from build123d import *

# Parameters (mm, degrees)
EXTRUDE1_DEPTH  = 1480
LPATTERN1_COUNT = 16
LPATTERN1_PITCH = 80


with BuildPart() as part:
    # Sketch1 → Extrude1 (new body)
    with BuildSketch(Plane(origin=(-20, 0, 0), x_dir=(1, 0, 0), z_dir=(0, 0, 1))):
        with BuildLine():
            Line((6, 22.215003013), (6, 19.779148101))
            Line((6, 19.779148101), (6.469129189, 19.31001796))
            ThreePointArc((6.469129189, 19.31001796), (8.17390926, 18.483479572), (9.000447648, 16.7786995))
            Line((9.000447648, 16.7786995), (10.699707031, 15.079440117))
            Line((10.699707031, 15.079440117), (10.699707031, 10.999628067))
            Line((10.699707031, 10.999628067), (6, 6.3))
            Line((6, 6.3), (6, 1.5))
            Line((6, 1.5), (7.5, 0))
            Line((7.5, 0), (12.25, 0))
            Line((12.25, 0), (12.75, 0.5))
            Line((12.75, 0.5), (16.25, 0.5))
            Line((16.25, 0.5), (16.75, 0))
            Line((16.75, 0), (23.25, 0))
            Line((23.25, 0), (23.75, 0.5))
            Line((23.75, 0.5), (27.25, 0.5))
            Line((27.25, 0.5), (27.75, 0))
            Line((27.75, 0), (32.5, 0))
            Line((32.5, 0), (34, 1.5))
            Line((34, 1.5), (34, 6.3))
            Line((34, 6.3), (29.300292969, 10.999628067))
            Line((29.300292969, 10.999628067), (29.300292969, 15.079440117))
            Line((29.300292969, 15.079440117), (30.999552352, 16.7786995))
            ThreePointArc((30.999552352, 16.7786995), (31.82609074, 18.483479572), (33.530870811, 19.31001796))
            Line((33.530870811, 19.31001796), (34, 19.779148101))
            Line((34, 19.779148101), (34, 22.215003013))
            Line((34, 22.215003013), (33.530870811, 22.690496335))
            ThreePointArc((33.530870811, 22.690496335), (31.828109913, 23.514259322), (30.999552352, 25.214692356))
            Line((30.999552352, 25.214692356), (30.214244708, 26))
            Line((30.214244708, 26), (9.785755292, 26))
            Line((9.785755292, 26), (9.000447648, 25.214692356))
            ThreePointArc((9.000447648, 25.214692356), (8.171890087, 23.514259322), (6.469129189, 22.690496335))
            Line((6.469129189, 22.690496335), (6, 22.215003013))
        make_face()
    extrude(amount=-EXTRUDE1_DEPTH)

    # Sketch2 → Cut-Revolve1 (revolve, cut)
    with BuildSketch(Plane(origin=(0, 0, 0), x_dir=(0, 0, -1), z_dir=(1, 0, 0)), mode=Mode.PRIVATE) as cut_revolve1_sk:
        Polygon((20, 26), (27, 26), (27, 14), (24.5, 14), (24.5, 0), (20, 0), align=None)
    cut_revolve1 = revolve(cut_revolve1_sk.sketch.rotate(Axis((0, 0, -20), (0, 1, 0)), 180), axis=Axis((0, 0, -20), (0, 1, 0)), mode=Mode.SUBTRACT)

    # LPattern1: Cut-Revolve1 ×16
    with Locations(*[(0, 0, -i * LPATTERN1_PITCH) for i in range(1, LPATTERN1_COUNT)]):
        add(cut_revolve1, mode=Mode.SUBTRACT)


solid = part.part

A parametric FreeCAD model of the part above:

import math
import FreeCAD as App
import Part
import Sketcher
from FreeCAD import Vector

doc = App.newDocument("Part")
body = doc.addObject("PartDesign::Body", "Body")

# Sketch on XY plane
sketch1 = body.newObject("Sketcher::SketchObject", "Sketch")
sketch1.AttachmentSupport = (doc.getObject("XY_Plane"), [""])
sketch1.MapMode = "FlatFace"
sketch1.addGeometry(Part.LineSegment(Vector(-14, 22.215003, 0), Vector(-14, 19.779148, 0)), False)
sketch1.addGeometry(Part.LineSegment(Vector(-14, 19.779148, 0), Vector(-13.530871, 19.310018, 0)), False)
sketch1.addGeometry(Part.ArcOfCircle(Part.Circle(Vector(-13.869629, 16.439941, 0), Vector(0, 0, 1), 2.889999), math.radians(6.731535), math.radians(83.268465)), False)
sketch1.addGeometry(Part.LineSegment(Vector(-10.999552, 16.778699, 0), Vector(-9.300293, 15.07944, 0)), False)
sketch1.addGeometry(Part.LineSegment(Vector(-9.300293, 15.07944, 0), Vector(-9.300293, 10.999628, 0)), False)
sketch1.addGeometry(Part.LineSegment(Vector(-9.300293, 10.999628, 0), Vector(-14, 6.3, 0)), False)
sketch1.addGeometry(Part.LineSegment(Vector(-14, 6.3, 0), Vector(-14, 1.5, 0)), False)
sketch1.addGeometry(Part.LineSegment(Vector(-14, 1.5, 0), Vector(-12.5, 0, 0)), False)
sketch1.addGeometry(Part.LineSegment(Vector(-12.5, 0, 0), Vector(-7.75, 0, 0)), False)
sketch1.addGeometry(Part.LineSegment(Vector(-7.75, 0, 0), Vector(-7.25, 0.5, 0)), False)
sketch1.addGeometry(Part.LineSegment(Vector(-7.25, 0.5, 0), Vector(-3.75, 0.5, 0)), False)
sketch1.addGeometry(Part.LineSegment(Vector(-3.75, 0.5, 0), Vector(-3.25, 0, 0)), False)
sketch1.addGeometry(Part.LineSegment(Vector(-3.25, 0, 0), Vector(3.25, 0, 0)), False)
sketch1.addGeometry(Part.LineSegment(Vector(3.25, 0, 0), Vector(3.75, 0.5, 0)), False)
sketch1.addGeometry(Part.LineSegment(Vector(3.75, 0.5, 0), Vector(7.25, 0.5, 0)), False)
sketch1.addGeometry(Part.LineSegment(Vector(7.25, 0.5, 0), Vector(7.75, 0, 0)), False)
sketch1.addGeometry(Part.LineSegment(Vector(7.75, 0, 0), Vector(12.5, 0, 0)), False)
sketch1.addGeometry(Part.LineSegment(Vector(12.5, 0, 0), Vector(14, 1.5, 0)), False)
sketch1.addGeometry(Part.LineSegment(Vector(14, 1.5, 0), Vector(14, 6.3, 0)), False)
sketch1.addGeometry(Part.LineSegment(Vector(14, 6.3, 0), Vector(9.300293, 10.999628, 0)), False)
sketch1.addGeometry(Part.LineSegment(Vector(9.300293, 10.999628, 0), Vector(9.300293, 15.07944, 0)), False)
sketch1.addGeometry(Part.LineSegment(Vector(9.300293, 15.07944, 0), Vector(10.999552, 16.778699, 0)), False)
sketch1.addGeometry(Part.ArcOfCircle(Part.Circle(Vector(13.869629, 16.439941, 0), Vector(0, 0, 1), 2.889999), math.radians(96.731535), math.radians(173.268465)), False)
sketch1.addGeometry(Part.LineSegment(Vector(13.530871, 19.310018, 0), Vector(14, 19.779148, 0)), False)
sketch1.addGeometry(Part.LineSegment(Vector(14, 19.779148, 0), Vector(14, 22.215003, 0)), False)
sketch1.addGeometry(Part.LineSegment(Vector(14, 22.215003, 0), Vector(13.530871, 22.690496, 0)), False)
sketch1.addGeometry(Part.ArcOfCircle(Part.Circle(Vector(13.868767, 25.560674, 0), Vector(0, 0, 1), 2.889999), math.radians(-173.124228), math.radians(-96.71433)), False)
sketch1.addGeometry(Part.LineSegment(Vector(10.999552, 25.214692, 0), Vector(10.214245, 26, 0)), False)
sketch1.addGeometry(Part.LineSegment(Vector(10.214245, 26, 0), Vector(-10.214245, 26, 0)), False)
sketch1.addGeometry(Part.LineSegment(Vector(-10.214245, 26, 0), Vector(-10.999552, 25.214692, 0)), False)
sketch1.addGeometry(Part.ArcOfCircle(Part.Circle(Vector(-13.868767, 25.560674, 0), Vector(0, 0, 1), 2.889999), math.radians(-83.28567), math.radians(-6.875772)), False)
sketch1.addGeometry(Part.LineSegment(Vector(-13.530871, 22.690496, 0), Vector(-14, 22.215003, 0)), False)
sketch1.addConstraint(Sketcher.Constraint("Coincident", 0, 2, 1, 1))
sketch1.addConstraint(Sketcher.Constraint("Coincident", 1, 2, 2, 2))
sketch1.addConstraint(Sketcher.Constraint("Coincident", 2, 1, 3, 1))
sketch1.addConstraint(Sketcher.Constraint("Coincident", 3, 2, 4, 1))
sketch1.addConstraint(Sketcher.Constraint("Coincident", 4, 2, 5, 1))
sketch1.addConstraint(Sketcher.Constraint("Coincident", 5, 2, 6, 1))
sketch1.addConstraint(Sketcher.Constraint("Coincident", 6, 2, 7, 1))
sketch1.addConstraint(Sketcher.Constraint("Coincident", 7, 2, 8, 1))
sketch1.addConstraint(Sketcher.Constraint("Coincident", 8, 2, 9, 1))
sketch1.addConstraint(Sketcher.Constraint("Coincident", 9, 2, 10, 1))
sketch1.addConstraint(Sketcher.Constraint("Coincident", 10, 2, 11, 1))
sketch1.addConstraint(Sketcher.Constraint("Coincident", 11, 2, 12, 1))
sketch1.addConstraint(Sketcher.Constraint("Coincident", 12, 2, 13, 1))
sketch1.addConstraint(Sketcher.Constraint("Coincident", 13, 2, 14, 1))
sketch1.addConstraint(Sketcher.Constraint("Coincident", 14, 2, 15, 1))
sketch1.addConstraint(Sketcher.Constraint("Coincident", 15, 2, 16, 1))
sketch1.addConstraint(Sketcher.Constraint("Coincident", 16, 2, 17, 1))
sketch1.addConstraint(Sketcher.Constraint("Coincident", 17, 2, 18, 1))
sketch1.addConstraint(Sketcher.Constraint("Coincident", 18, 2, 19, 1))
sketch1.addConstraint(Sketcher.Constraint("Coincident", 19, 2, 20, 1))
sketch1.addConstraint(Sketcher.Constraint("Coincident", 20, 2, 21, 1))
sketch1.addConstraint(Sketcher.Constraint("Coincident", 21, 2, 22, 2))
sketch1.addConstraint(Sketcher.Constraint("Coincident", 22, 1, 23, 1))
sketch1.addConstraint(Sketcher.Constraint("Coincident", 23, 2, 24, 1))
sketch1.addConstraint(Sketcher.Constraint("Coincident", 24, 2, 25, 1))
sketch1.addConstraint(Sketcher.Constraint("Coincident", 25, 2, 26, 2))
sketch1.addConstraint(Sketcher.Constraint("Coincident", 26, 1, 27, 1))
sketch1.addConstraint(Sketcher.Constraint("Coincident", 27, 2, 28, 1))
sketch1.addConstraint(Sketcher.Constraint("Coincident", 28, 2, 29, 1))
sketch1.addConstraint(Sketcher.Constraint("Coincident", 29, 2, 30, 2))
sketch1.addConstraint(Sketcher.Constraint("Coincident", 30, 1, 31, 1))
sketch1.addConstraint(Sketcher.Constraint("Coincident", 31, 2, 0, 1))
sketch1.addConstraint(Sketcher.Constraint("Vertical", 0))
sketch1.addConstraint(Sketcher.Constraint("Vertical", 4))
sketch1.addConstraint(Sketcher.Constraint("Vertical", 6))
sketch1.addConstraint(Sketcher.Constraint("Horizontal", 8))
sketch1.addConstraint(Sketcher.Constraint("Horizontal", 10))
sketch1.addConstraint(Sketcher.Constraint("Horizontal", 12))
sketch1.addConstraint(Sketcher.Constraint("Horizontal", 14))
sketch1.addConstraint(Sketcher.Constraint("Horizontal", 16))
sketch1.addConstraint(Sketcher.Constraint("Vertical", 18))
sketch1.addConstraint(Sketcher.Constraint("Vertical", 20))
sketch1.addConstraint(Sketcher.Constraint("Vertical", 24))
sketch1.addConstraint(Sketcher.Constraint("Horizontal", 28))
sketch1.addConstraint(Sketcher.Constraint("Equal", 2, 22))
sketch1.addConstraint(Sketcher.Constraint("Equal", 22, 26))
sketch1.addConstraint(Sketcher.Constraint("Equal", 26, 30))
sketch1.addConstraint(Sketcher.Constraint("Symmetric", 11, 2, 12, 2, -1, 1))
sketch1.addConstraint(Sketcher.Constraint("Symmetric", 8, 2, 15, 2, -1, 1))
sketch1.addConstraint(Sketcher.Constraint("Symmetric", 2, 3, 22, 3, -2))
sketch1.addConstraint(Sketcher.Constraint("Symmetric", 26, 3, 30, 3, -2))
sketch1.addConstraint(Sketcher.Constraint("Symmetric", 10, 2, 13, 2, -2))
sketch1.addConstraint(Sketcher.Constraint("Symmetric", 7, 2, 16, 2, -2))
sketch1.addConstraint(Sketcher.Constraint("Symmetric", 6, 2, 17, 2, -2))
sketch1.addConstraint(Sketcher.Constraint("Symmetric", 4, 2, 19, 2, -2))
sketch1.addConstraint(Sketcher.Constraint("Symmetric", 0, 2, 23, 2, -2))
sketch1.addConstraint(Sketcher.Constraint("Parallel", 1, 3))
sketch1.addConstraint(Sketcher.Constraint("Parallel", 3, 7))
sketch1.addConstraint(Sketcher.Constraint("Perpendicular", 7, 9))
sketch1.addConstraint(Sketcher.Constraint("Perpendicular", 9, 11))
sketch1.addConstraint(Sketcher.Constraint("Perpendicular", 11, 13))
sketch1.addConstraint(Sketcher.Constraint("Perpendicular", 13, 15))
sketch1.addConstraint(Sketcher.Constraint("Parallel", 17, 21))
sketch1.addConstraint(Sketcher.Constraint("Parallel", 21, 23))
sketch1.addConstraint(Sketcher.Constraint("Perpendicular", 23, 27))
sketch1.addConstraint(Sketcher.Constraint("Perpendicular", 27, 29))
sketch1.addConstraint(Sketcher.Constraint("Horizontal", 5, 2, 18, 2))
sketch1.addConstraint(Sketcher.Constraint("Horizontal", 3, 2, 20, 2))
sketch1.addConstraint(Sketcher.Constraint("Horizontal", 26, 1, 29, 2))
sketch1.addConstraint(Sketcher.Constraint("Horizontal", 25, 2, 30, 1))
sketch1.addConstraint(Sketcher.Constraint("Horizontal", 24, 2, 31, 2))
sketch1.addConstraint(Sketcher.Constraint("Vertical", 0, 2, 5, 2))
sketch1.addConstraint(Sketcher.Constraint("Vertical", 22, 1, 25, 2))
sketch1.addConstraint(Sketcher.Constraint("Vertical", 21, 2, 26, 1))
sketch1.addConstraint(Sketcher.Constraint("Radius", 2, 2.889999))
sketch1.addConstraint(Sketcher.Constraint("DistanceX", 10, 1, 10, 2, 3.5))
sketch1.addConstraint(Sketcher.Constraint("DistanceX", 12, 1, 12, 2, 6.5))
sketch1.addConstraint(Sketcher.Constraint("DistanceY", 6, 2, 6, 1, 4.8))
sketch1.addConstraint(Sketcher.Constraint("DistanceX", 0, 2, -1, 1, 14.0))
sketch1.addConstraint(Sketcher.Constraint("DistanceY", -1, 1, 27, 2, 26.0))
sketch1.addConstraint(Sketcher.Constraint("DistanceY", 9, 2, 6, 2, 1.0))
sketch1.addConstraint(Sketcher.Constraint("DistanceX", 8, 2, 10, 2, 4.0))
sketch1.addConstraint(Sketcher.Constraint("DistanceX", 28, 2, 28, 1, 20.428489))
sketch1.addConstraint(Sketcher.Constraint("DistanceY", -1, 1, 2, 1, 16.7787))
sketch1.addConstraint(Sketcher.Constraint("DistanceX", 1, 2, 22, 3, 27.4005))
sketch1.addConstraint(Sketcher.Constraint("DistanceY", 3, 2, 2, 3, 1.360501))
sketch1.addConstraint(Sketcher.Constraint("Distance", 1, 0.66345))
sketch1.addConstraint(Sketcher.Constraint("DistanceY", 0, 2, 0, 1, 2.435855))
sketch1.addConstraint(Sketcher.Constraint("DistanceY", 4, 2, 4, 1, 4.079812))
sketch1.addConstraint(Sketcher.Constraint("DistanceY", -1, 1, 2, 3, 16.439941))
sketch1.addConstraint(Sketcher.Constraint("DistanceX", 26, 3, 22, 3, 0.000862))
pad1 = body.newObject("PartDesign::Pad", "Pad")
pad1.Profile = sketch1
pad1.Length = 1480
pad1.Reversed = True

# Sketch on YZ plane
sketch2 = body.newObject("Sketcher::SketchObject", "Sketch001")
sketch2.AttachmentSupport = (doc.getObject("YZ_Plane"), [""])
sketch2.MapMode = "FlatFace"
sketch2.addGeometry(Part.LineSegment(Vector(26, -27, 0), Vector(26, -20, 0)), False)
sketch2.addGeometry(Part.LineSegment(Vector(26, -20, 0), Vector(0, -20, 0)), False)
sketch2.addGeometry(Part.LineSegment(Vector(0, -20, 0), Vector(0, -24.5, 0)), False)
sketch2.addGeometry(Part.LineSegment(Vector(0, -24.5, 0), Vector(14, -24.5, 0)), False)
sketch2.addGeometry(Part.LineSegment(Vector(14, -24.5, 0), Vector(14, -27, 0)), False)
sketch2.addGeometry(Part.LineSegment(Vector(14, -27, 0), Vector(26, -27, 0)), False)
sketch2.addGeometry(Part.LineSegment(Vector(0, -20, 0), Vector(26, -20, 0)), True)  # axis
sketch2.addConstraint(Sketcher.Constraint("Coincident", 0, 2, 1, 1))
sketch2.addConstraint(Sketcher.Constraint("Coincident", 1, 2, 2, 1))
sketch2.addConstraint(Sketcher.Constraint("Coincident", 2, 2, 3, 1))
sketch2.addConstraint(Sketcher.Constraint("Coincident", 3, 2, 4, 1))
sketch2.addConstraint(Sketcher.Constraint("Coincident", 4, 2, 5, 1))
sketch2.addConstraint(Sketcher.Constraint("Coincident", 5, 2, 0, 1))
sketch2.addConstraint(Sketcher.Constraint("Vertical", 0))
sketch2.addConstraint(Sketcher.Constraint("Horizontal", 1))
sketch2.addConstraint(Sketcher.Constraint("Vertical", 2))
sketch2.addConstraint(Sketcher.Constraint("Horizontal", 3))
sketch2.addConstraint(Sketcher.Constraint("Vertical", 4))
sketch2.addConstraint(Sketcher.Constraint("Horizontal", 5))
sketch2.addConstraint(Sketcher.Constraint("Horizontal", 6))
sketch2.addConstraint(Sketcher.Constraint("Coincident", 6, 1, 1, 2))
sketch2.addConstraint(Sketcher.Constraint("PointOnObject", 1, 2, -2))
sketch2.addConstraint(Sketcher.Constraint("Vertical", 5, 2, 6, 2))
sketch2.addConstraint(Sketcher.Constraint("DistanceX", 1, 2, 1, 1, 26.0))
sketch2.addConstraint(Sketcher.Constraint("DistanceX", 3, 1, 3, 2, 14.0))
sketch2.addConstraint(Sketcher.Constraint("DistanceY", 0, 1, 0, 2, 7.0))
sketch2.addConstraint(Sketcher.Constraint("DistanceY", 2, 2, 2, 1, 4.5))
sketch2.addConstraint(Sketcher.Constraint("DistanceY", 0, 2, -1, 1, 20.0))
groove = body.newObject("PartDesign::Groove", "Groove")
groove.Profile = sketch2
groove.ReferenceAxis = (sketch2, ["Axis0"])
groove.Angle = 360
doc.recompute()

linearpattern = body.newObject("PartDesign::LinearPattern", "LinearPattern")
linearpattern.Originals = [groove]
linearpattern.Direction = (doc.getObject("Z_Axis"), [""])
linearpattern.Mode = "offset"
linearpattern.Offset = 80
linearpattern.Occurrences = 16
linearpattern.Reversed = True
body.Tip = linearpattern

doc.recompute()
